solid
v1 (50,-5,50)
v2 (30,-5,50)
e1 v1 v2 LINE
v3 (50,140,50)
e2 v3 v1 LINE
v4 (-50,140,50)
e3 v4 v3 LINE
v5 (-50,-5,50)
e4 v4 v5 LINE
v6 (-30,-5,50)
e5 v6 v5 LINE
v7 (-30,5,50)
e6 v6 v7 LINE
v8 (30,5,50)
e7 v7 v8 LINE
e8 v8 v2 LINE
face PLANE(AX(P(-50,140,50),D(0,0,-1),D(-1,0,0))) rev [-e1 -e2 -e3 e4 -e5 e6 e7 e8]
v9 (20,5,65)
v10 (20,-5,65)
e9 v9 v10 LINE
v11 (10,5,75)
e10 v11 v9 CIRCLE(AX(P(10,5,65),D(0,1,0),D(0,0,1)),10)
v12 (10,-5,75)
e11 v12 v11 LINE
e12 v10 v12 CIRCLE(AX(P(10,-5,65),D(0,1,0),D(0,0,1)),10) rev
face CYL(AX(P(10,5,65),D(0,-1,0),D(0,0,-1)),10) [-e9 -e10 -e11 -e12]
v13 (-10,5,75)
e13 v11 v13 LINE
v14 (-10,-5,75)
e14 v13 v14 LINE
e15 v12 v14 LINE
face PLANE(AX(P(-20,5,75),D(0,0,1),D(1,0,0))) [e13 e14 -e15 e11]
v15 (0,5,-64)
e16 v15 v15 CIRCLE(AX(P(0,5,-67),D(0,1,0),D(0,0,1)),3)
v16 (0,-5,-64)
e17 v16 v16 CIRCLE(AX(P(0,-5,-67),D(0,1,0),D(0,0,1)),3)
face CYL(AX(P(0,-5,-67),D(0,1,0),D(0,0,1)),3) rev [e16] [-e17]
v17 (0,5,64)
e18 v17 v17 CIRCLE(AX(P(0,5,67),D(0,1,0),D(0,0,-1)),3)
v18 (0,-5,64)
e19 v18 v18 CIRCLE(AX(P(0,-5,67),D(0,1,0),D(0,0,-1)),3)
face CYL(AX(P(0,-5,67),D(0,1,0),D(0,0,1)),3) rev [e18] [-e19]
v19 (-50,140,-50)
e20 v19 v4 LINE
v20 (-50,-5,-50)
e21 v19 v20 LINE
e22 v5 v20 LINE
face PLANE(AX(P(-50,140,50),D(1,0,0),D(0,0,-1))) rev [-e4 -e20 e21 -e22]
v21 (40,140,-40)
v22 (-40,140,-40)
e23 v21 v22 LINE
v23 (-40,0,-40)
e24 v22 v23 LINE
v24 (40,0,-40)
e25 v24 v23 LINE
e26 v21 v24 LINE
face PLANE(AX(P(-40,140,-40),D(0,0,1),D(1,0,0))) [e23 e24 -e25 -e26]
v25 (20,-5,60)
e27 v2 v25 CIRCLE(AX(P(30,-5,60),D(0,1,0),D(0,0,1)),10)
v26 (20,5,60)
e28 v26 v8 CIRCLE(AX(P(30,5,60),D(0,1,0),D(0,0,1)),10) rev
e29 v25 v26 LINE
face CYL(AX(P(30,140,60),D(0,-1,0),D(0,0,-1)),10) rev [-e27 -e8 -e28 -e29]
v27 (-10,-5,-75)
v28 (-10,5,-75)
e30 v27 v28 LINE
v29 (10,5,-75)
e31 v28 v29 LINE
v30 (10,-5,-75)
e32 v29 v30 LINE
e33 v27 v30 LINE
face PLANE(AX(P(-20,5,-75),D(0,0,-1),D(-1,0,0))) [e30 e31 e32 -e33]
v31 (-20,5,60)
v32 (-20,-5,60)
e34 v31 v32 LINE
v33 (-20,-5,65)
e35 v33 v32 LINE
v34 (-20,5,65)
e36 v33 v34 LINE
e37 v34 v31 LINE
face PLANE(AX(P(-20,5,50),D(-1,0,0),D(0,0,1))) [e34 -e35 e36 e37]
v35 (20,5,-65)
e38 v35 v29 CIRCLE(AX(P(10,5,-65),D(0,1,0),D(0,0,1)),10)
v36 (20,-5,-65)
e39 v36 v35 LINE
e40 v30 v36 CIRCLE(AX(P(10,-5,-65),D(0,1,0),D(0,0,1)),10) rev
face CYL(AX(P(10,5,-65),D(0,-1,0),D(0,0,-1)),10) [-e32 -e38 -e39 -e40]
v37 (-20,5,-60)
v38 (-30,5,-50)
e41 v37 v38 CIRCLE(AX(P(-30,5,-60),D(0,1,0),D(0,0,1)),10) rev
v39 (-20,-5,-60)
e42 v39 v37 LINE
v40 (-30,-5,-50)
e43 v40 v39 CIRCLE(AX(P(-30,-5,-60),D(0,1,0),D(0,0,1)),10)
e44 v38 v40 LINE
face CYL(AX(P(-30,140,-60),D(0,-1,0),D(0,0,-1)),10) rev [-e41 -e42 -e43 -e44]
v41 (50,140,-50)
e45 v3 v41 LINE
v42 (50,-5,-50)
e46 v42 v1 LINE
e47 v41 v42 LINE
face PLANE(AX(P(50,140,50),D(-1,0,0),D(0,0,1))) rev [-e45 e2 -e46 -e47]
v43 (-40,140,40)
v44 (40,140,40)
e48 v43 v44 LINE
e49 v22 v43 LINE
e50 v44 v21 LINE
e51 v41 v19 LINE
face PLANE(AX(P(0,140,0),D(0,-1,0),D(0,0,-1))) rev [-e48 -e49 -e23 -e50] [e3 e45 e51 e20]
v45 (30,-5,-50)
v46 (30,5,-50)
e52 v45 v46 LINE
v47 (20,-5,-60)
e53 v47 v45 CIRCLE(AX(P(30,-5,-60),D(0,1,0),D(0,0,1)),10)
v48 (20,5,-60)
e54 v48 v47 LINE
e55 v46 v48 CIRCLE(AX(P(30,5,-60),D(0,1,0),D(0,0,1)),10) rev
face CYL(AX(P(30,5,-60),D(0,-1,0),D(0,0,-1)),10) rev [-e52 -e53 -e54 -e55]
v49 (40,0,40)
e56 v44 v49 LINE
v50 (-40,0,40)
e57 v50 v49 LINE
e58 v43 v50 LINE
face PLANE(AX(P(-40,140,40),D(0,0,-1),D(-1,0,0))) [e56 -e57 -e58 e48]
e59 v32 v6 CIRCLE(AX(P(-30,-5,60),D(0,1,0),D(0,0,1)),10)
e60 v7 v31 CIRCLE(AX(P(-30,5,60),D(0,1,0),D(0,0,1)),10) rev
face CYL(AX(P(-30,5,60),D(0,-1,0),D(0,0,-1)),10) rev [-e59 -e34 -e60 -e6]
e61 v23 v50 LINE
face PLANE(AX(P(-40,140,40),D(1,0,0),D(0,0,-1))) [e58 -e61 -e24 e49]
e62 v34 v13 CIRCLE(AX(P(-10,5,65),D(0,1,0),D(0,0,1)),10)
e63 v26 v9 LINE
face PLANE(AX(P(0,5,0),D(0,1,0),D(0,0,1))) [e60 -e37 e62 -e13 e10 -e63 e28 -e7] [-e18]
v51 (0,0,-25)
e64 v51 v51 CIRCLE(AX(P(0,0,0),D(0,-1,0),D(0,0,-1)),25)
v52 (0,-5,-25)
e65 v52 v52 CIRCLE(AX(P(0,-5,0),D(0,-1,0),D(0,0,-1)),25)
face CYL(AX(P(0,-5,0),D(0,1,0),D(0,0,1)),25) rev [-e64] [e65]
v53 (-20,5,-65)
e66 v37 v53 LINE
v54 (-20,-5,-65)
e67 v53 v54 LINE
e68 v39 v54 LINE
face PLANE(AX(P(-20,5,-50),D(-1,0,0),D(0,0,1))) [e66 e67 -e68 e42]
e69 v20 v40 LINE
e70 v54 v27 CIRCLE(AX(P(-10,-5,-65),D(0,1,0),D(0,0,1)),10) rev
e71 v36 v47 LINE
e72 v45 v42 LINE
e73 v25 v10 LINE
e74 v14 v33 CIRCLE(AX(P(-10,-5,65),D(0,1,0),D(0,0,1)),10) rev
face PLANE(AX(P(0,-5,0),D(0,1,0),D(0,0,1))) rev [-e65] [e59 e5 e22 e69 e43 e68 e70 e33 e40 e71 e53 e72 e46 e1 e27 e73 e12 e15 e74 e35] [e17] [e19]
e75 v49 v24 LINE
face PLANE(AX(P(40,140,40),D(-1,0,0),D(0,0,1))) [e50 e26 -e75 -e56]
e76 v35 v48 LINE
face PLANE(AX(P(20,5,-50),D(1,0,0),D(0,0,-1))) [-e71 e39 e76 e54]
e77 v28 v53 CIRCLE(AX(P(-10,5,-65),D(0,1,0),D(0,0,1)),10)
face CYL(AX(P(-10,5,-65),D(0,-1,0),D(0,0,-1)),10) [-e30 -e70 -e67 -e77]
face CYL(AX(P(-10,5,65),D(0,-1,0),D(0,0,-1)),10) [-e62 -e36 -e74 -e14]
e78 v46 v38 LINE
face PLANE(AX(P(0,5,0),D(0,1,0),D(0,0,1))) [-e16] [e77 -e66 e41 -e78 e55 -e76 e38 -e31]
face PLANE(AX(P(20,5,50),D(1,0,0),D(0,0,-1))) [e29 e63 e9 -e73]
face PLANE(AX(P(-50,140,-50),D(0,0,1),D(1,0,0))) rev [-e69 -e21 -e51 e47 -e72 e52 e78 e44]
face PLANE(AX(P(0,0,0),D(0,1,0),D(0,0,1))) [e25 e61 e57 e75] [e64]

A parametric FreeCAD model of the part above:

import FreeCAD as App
import Part
import Sketcher

V = App.Vector
Q = App.Units.Quantity


def edges_at(feature, points):
    """Names of the edges that pass closest to the given points."""
    edges = feature.Shape.Edges
    near = lambda p: min(range(len(edges)), key=lambda i: edges[i].distToShape(Part.Vertex(*p))[0])
    return sorted({f"Edge{near(p) + 1}" for p in points})

doc = App.newDocument("Part")
body = doc.addObject("PartDesign::Body", "Body")

# Sketch on XZ plane
sketch1 = body.newObject("Sketcher::SketchObject", "Sketch")
sketch1.AttachmentSupport = (doc.getObject("XZ_Plane"), [""])
sketch1.MapMode = "FlatFace"
sketch1.addGeometry(Part.LineSegment(V(-50, -50, 0), V(-50, 50, 0)), False)
sketch1.addGeometry(Part.LineSegment(V(-50, 50, 0), V(50, 50, 0)), False)
sketch1.addGeometry(Part.LineSegment(V(50, 50, 0), V(50, -50, 0)), False)
sketch1.addGeometry(Part.LineSegment(V(50, -50, 0), V(-50, -50, 0)), False)
sketch1.addGeometry(Part.LineSegment(V(40, 40, 0), V(-40, 40, 0)), False)
sketch1.addGeometry(Part.LineSegment(V(-40, 40, 0), V(-40, -40, 0)), False)
sketch1.addGeometry(Part.LineSegment(V(-40, -40, 0), V(40, -40, 0)), False)
sketch1.addGeometry(Part.LineSegment(V(40, -40, 0), V(40, 40, 0)), False)
sketch1.addConstraint(Sketcher.Constraint("Coincident", 0, 2, 1, 1))
sketch1.addConstraint(Sketcher.Constraint("Coincident", 1, 2, 2, 1))
sketch1.addConstraint(Sketcher.Constraint("Coincident", 2, 2, 3, 1))
sketch1.addConstraint(Sketcher.Constraint("Coincident", 3, 2, 0, 1))
sketch1.addConstraint(Sketcher.Constraint("Coincident", 4, 2, 5, 1))
sketch1.addConstraint(Sketcher.Constraint("Coincident", 5, 2, 6, 1))
sketch1.addConstraint(Sketcher.Constraint("Coincident", 6, 2, 7, 1))
sketch1.addConstraint(Sketcher.Constraint("Coincident", 7, 2, 4, 1))
sketch1.addConstraint(Sketcher.Constraint("Vertical", 0))
sketch1.addConstraint(Sketcher.Constraint("Horizontal", 1))
sketch1.addConstraint(Sketcher.Constraint("Vertical", 2))
sketch1.addConstraint(Sketcher.Constraint("Horizontal", 3))
sketch1.addConstraint(Sketcher.Constraint("Horizontal", 4))
sketch1.addConstraint(Sketcher.Constraint("Vertical", 5))
sketch1.addConstraint(Sketcher.Constraint("Horizontal", 6))
sketch1.addConstraint(Sketcher.Constraint("Vertical", 7))
sketch1.addConstraint(Sketcher.Constraint("Symmetric", 0, 2, 2, 2, -1, 1))
sketch1.addConstraint(Sketcher.Constraint("Symmetric", 4, 2, 6, 2, -1, 1))
sketch1.addConstraint(Sketcher.Constraint("Equal", 3, 0))
sketch1.addConstraint(Sketcher.Constraint("Equal", 6, 5))
sketch1.addConstraint(Sketcher.Constraint("DistanceX", 1, 1, 1, 2, Q("100 mm")))
sketch1.addConstraint(Sketcher.Constraint("DistanceX", 4, 2, 4, 1, Q("80 mm")))
pad1 = body.newObject("PartDesign::Pad", "Pad")
pad1.Profile = sketch1
pad1.Length = 140
pad1.Reversed = True

# Sketch on XZ plane
sketch2 = body.newObject("Sketcher::SketchObject", "Sketch001")
sketch2.AttachmentSupport = (doc.getObject("XZ_Plane"), [""])
sketch2.MapMode = "FlatFace"
sketch2.addGeometry(Part.LineSegment(V(-50, 50, 0), V(-50, -50, 0)), False)
sketch2.addGeometry(Part.LineSegment(V(-50, -50, 0), V(50, -50, 0)), False)
sketch2.addGeometry(Part.LineSegment(V(50, -50, 0), V(50, 50, 0)), False)
sketch2.addGeometry(Part.LineSegment(V(50, 50, 0), V(-50, 50, 0)), False)
sketch2.addGeometry(Part.Circle(V(0, 0, 0), V(0, 0, 1), 25), False)
sketch2.addConstraint(Sketcher.Constraint("Coincident", 0, 2, 1, 1))
sketch2.addConstraint(Sketcher.Constraint("Coincident", 1, 2, 2, 1))
sketch2.addConstraint(Sketcher.Constraint("Coincident", 2, 2, 3, 1))
sketch2.addConstraint(Sketcher.Constraint("Coincident", 3, 2, 0, 1))
sketch2.addConstraint(Sketcher.Constraint("Vertical", 0))
sketch2.addConstraint(Sketcher.Constraint("Horizontal", 1))
sketch2.addConstraint(Sketcher.Constraint("Vertical", 2))
sketch2.addConstraint(Sketcher.Constraint("Horizontal", 3))
sketch2.addConstraint(Sketcher.Constraint("Coincident", 4, 3, -1, 1))
sketch2.addConstraint(Sketcher.Constraint("Symmetric", 0, 2, 2, 2, -1, 1))
sketch2.addConstraint(Sketcher.Constraint("Equal", 3, 0))
sketch2.addConstraint(Sketcher.Constraint("Diameter", 4, Q("50 mm")))
sketch2.addConstraint(Sketcher.Constraint("DistanceX", 1, 1, 1, 2, Q("100 mm")))
pad2 = body.newObject("PartDesign::Pad", "Pad001")
pad2.Profile = sketch2
pad2.Length = 5

# Sketch on XZ plane
sketch3 = body.newObject("Sketcher::SketchObject", "Sketch002")
sketch3.AttachmentSupport = (doc.getObject("XZ_Plane"), [""])
sketch3.MapMode = "FlatFace"
sketch3.AttachmentOffset = App.Placement(V(0, 0, 5), App.Rotation())
sketch3.addGeometry(Part.LineSegment(V(-20, 75, 0), V(-20, 50, 0)), False)
sketch3.addGeometry(Part.LineSegment(V(-20, 50, 0), V(20, 50, 0)), False)
sketch3.addGeometry(Part.LineSegment(V(20, 50, 0), V(20, 75, 0)), False)
sketch3.addGeometry(Part.LineSegment(V(20, 75, 0), V(-20, 75, 0)), False)
sketch3.addGeometry(Part.LineSegment(V(-20, -50, 0), V(-20, -75, 0)), False)
sketch3.addGeometry(Part.LineSegment(V(-20, -75, 0), V(20, -75, 0)), False)
sketch3.addGeometry(Part.LineSegment(V(20, -75, 0), V(20, -50, 0)), False)
sketch3.addGeometry(Part.LineSegment(V(20, -50, 0), V(-20, -50, 0)), False)
sketch3.addConstraint(Sketcher.Constraint("Coincident", 0, 2, 1, 1))
sketch3.addConstraint(Sketcher.Constraint("Coincident", 1, 2, 2, 1))
sketch3.addConstraint(Sketcher.Constraint("Coincident", 2, 2, 3, 1))
sketch3.addConstraint(Sketcher.Constraint("Coincident", 3, 2, 0, 1))
sketch3.addConstraint(Sketcher.Constraint("Coincident", 4, 2, 5, 1))
sketch3.addConstraint(Sketcher.Constraint("Coincident", 5, 2, 6, 1))
sketch3.addConstraint(Sketcher.Constraint("Coincident", 6, 2, 7, 1))
sketch3.addConstraint(Sketcher.Constraint("Coincident", 7, 2, 4, 1))
sketch3.addConstraint(Sketcher.Constraint("Vertical", 0))
sketch3.addConstraint(Sketcher.Constraint("Horizontal", 1))
sketch3.addConstraint(Sketcher.Constraint("Vertical", 2))
sketch3.addConstraint(Sketcher.Constraint("Horizontal", 3))
sketch3.addConstraint(Sketcher.Constraint("Vertical", 4))
sketch3.addConstraint(Sketcher.Constraint("Horizontal", 5))
sketch3.addConstraint(Sketcher.Constraint("Vertical", 6))
sketch3.addConstraint(Sketcher.Constraint("Horizontal", 7))
sketch3.addConstraint(Sketcher.Constraint("Symmetric", 2, 2, 4, 2, -1, 1))
sketch3.addConstraint(Sketcher.Constraint("Symmetric", 0, 2, 6, 2, -1, 1))
sketch3.addConstraint(Sketcher.Constraint("Vertical", 3, 2, 4, 2))
sketch3.addConstraint(Sketcher.Constraint("DistanceX", 1, 1, 1, 2, Q("40 mm")))
sketch3.addConstraint(Sketcher.Constraint("DistanceY", 0, 2, 0, 1, Q("25 mm")))
sketch3.addConstraint(Sketcher.Constraint("DistanceY", -1, 1, 0, 2, Q("50 mm")))
pad3 = body.newObject("PartDesign::Pad", "Pad002")
pad3.Profile = sketch3
pad3.Length = 10
pad3.Reversed = True

# Sketch on XZ plane
sketch4 = body.newObject("Sketcher::SketchObject", "Sketch003")
sketch4.AttachmentSupport = (doc.getObject("XZ_Plane"), [""])
sketch4.MapMode = "FlatFace"
sketch4.AttachmentOffset = App.Placement(V(0, 0, -5), App.Rotation())
sketch4.addGeometry(Part.Circle(V(0, -67, 0), V(0, 0, 1), 3), False)
sketch4.addGeometry(Part.Circle(V(0, 67, 0), V(0, 0, 1), 3), False)
sketch4.addConstraint(Sketcher.Constraint("Equal", 0, 1))
sketch4.addConstraint(Sketcher.Constraint("Symmetric", 0, 3, 1, 3, -1, 1))
sketch4.addConstraint(Sketcher.Constraint("PointOnObject", 0, 3, -2))
sketch4.addConstraint(Sketcher.Constraint("Diameter", 0, Q("6 mm")))
sketch4.addConstraint(Sketcher.Constraint("DistanceY", 0, 3, -1, 1, Q("67 mm")))
pocket1 = body.newObject("PartDesign::Pocket", "Pocket")
pocket1.Profile = sketch4
pocket1.Length = 10
pocket1.Reversed = True
doc.recompute()

fillet = body.newObject("PartDesign::Fillet", "Fillet")
fillet.Base = (pocket1, edges_at(pocket1, [
    (-20, 0, 50),
    (-20, 0, 75),
    (20, 0, 75),
    (20, 0, 50),
    (-20, 0, -50),
    (20, 0, -50),
    (20, 0, -75),
    (-20, 0, -75),
]))
fillet.Radius = 10

doc.recompute()
